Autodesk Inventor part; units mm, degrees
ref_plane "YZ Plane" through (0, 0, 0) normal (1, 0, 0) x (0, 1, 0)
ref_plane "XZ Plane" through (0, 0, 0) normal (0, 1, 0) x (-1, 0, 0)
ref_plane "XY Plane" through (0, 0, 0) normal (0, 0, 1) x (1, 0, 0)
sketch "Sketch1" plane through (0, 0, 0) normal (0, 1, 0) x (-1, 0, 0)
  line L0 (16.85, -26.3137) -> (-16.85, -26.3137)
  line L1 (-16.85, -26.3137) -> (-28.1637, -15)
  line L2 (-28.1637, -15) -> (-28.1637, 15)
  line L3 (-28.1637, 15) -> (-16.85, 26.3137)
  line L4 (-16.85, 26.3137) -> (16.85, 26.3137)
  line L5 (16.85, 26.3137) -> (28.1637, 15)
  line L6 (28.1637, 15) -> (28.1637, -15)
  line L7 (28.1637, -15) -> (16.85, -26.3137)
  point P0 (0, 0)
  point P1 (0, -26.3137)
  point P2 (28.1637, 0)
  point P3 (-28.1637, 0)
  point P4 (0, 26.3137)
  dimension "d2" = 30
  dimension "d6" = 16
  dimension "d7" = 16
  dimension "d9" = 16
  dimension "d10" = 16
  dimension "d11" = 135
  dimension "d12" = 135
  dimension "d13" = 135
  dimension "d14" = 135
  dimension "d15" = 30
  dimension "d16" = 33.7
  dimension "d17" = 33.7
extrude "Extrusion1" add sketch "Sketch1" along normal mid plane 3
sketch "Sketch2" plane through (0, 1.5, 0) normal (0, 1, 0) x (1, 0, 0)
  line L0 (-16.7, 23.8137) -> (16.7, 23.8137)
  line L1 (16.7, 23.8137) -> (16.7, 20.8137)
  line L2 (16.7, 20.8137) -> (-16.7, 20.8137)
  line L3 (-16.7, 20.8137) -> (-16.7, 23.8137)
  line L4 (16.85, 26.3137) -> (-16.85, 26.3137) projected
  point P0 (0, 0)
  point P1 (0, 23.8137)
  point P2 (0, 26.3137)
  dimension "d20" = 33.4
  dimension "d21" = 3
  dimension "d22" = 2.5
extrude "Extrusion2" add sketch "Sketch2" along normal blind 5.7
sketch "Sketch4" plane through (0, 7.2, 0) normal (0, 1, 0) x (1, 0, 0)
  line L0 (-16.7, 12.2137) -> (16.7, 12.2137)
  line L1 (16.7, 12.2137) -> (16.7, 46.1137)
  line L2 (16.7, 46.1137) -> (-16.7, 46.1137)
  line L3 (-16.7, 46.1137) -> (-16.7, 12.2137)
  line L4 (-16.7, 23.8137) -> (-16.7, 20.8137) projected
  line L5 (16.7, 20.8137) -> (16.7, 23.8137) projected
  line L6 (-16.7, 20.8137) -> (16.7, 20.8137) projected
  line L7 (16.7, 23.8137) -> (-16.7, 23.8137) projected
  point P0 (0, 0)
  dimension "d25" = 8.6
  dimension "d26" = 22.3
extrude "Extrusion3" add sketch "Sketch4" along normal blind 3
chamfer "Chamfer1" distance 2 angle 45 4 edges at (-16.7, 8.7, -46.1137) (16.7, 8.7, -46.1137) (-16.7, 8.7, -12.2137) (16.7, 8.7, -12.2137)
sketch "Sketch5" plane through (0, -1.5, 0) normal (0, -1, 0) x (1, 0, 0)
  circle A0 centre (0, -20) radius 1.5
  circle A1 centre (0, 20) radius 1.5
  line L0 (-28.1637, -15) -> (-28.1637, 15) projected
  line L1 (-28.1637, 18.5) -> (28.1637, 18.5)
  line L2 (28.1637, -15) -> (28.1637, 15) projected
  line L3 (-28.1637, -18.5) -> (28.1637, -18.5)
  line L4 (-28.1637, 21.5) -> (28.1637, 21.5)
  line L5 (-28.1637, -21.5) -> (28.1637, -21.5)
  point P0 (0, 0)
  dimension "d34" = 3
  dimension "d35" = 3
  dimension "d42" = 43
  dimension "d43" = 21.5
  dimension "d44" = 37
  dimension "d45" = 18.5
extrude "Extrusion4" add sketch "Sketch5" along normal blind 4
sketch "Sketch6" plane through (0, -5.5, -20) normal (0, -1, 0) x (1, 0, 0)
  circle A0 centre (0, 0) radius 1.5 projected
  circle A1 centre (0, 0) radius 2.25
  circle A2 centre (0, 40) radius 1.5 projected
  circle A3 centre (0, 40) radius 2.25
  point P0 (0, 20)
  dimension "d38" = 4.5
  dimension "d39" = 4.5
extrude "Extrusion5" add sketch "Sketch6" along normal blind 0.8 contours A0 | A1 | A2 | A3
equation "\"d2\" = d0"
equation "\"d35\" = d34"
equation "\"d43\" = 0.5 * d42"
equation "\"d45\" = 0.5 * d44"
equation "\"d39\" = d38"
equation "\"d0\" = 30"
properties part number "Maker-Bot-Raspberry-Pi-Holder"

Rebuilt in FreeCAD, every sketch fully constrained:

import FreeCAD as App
import Part
import Sketcher

V = App.Vector
Q = App.Units.Quantity


def edges_at(feature, points):
    """Names of the edges that pass closest to the given points."""
    edges = feature.Shape.Edges
    near = lambda p: min(range(len(edges)), key=lambda i: edges[i].distToShape(Part.Vertex(*p))[0])
    return sorted({f"Edge{near(p) + 1}" for p in points})

doc = App.newDocument("Part")
params = doc.addObject("Spreadsheet::Sheet", "Params")
for row, (alias, value) in enumerate([
    ("sketch1_height", "30 mm"),
    ("sketch1_length", "16 mm"),
    ("sketch1_width", "33.7 mm"),
    ("pad1_length", "3 mm"),
    ("sketch2_height", "3 mm"),
    ("sketch2_width", "33.4 mm"),
    ("pad2_length", "5.7 mm"),
    ("sketch3_width", "33.4 mm"),
    ("sketch3_height", "33.9 mm"),
    ("pad3_length", "3 mm"),
    ("chamfer_size", "2 mm"),
    ("sketch4_diameter", "3 mm"),
    ("pad4_length", "4 mm"),
    ("sketch5_diameter", "4.5 mm"),
    ("pad5_length", "0.8 mm"),
], start=1):
    params.set(f"A{row}", alias)
    params.set(f"B{row}", "=" + value)
    params.setAlias(f"B{row}", alias)

body = doc.addObject("PartDesign::Body", "Body")

# Sketch on XZ plane
sketch1 = doc.addObject("Sketcher::SketchObject", "Sketch")
body.addObject(sketch1)
sketch1.AttachmentSupport = (doc.XZ_Plane, [""])
sketch1.MapMode = "FlatFace"
sketch1.addGeometry([
    Part.LineSegment(V(17, -26, 0), V(-17, -26, 0)),  # 0
    Part.LineSegment(V(-17, -26, 0), V(-28, -15, 0)),  # 1
    Part.LineSegment(V(-28, -15, 0), V(-28, 15, 0)),  # 2
    Part.LineSegment(V(-28, 15, 0), V(-17, 26, 0)),  # 3
    Part.LineSegment(V(-17, 26, 0), V(17, 26, 0)),  # 4
    Part.LineSegment(V(17, 26, 0), V(28, 15, 0)),  # 5
    Part.LineSegment(V(28, 15, 0), V(28, -15, 0)),  # 6
    Part.LineSegment(V(28, -15, 0), V(17, -26, 0)),  # 7
], False)
sketch1.addConstraint([
    Sketcher.Constraint("Coincident", 0, 2, 1, 1),
    Sketcher.Constraint("Coincident", 1, 2, 2, 1),
    Sketcher.Constraint("Coincident", 2, 2, 3, 1),
    Sketcher.Constraint("Coincident", 3, 2, 4, 1),
    Sketcher.Constraint("Coincident", 4, 2, 5, 1),
    Sketcher.Constraint("Coincident", 5, 2, 6, 1),
    Sketcher.Constraint("Coincident", 6, 2, 7, 1),
    Sketcher.Constraint("Coincident", 7, 2, 0, 1),
    Sketcher.Constraint("Horizontal", 0),
    Sketcher.Constraint("Vertical", 2),
    Sketcher.Constraint("Horizontal", 4),
    Sketcher.Constraint("Vertical", 6),
    Sketcher.Constraint("Symmetric", 0, 2, 4, 2, -1, 1),
    Sketcher.Constraint("Symmetric", 1, 2, 5, 2, -1, 1),
    Sketcher.Constraint("Perpendicular", 1, 3),
    Sketcher.Constraint("Perpendicular", 5, 7),
    Sketcher.Constraint("Horizontal", 2, 2, 5, 2),
    Sketcher.Constraint("Horizontal", 1, 2, 6, 2),
    Sketcher.Constraint("Vertical", 0, 2, 3, 2),
    Sketcher.Constraint("DistanceY", 2, 1, 2, 2, Q("30 mm")),
    Sketcher.Constraint("Distance", 1, Q("16 mm")),
    Sketcher.Constraint("DistanceX", 0, 2, 0, 1, Q("33.7 mm")),
])
sketch1.setExpression("Constraints[19]", "Params.sketch1_height")
sketch1.setExpression("Constraints[20]", "Params.sketch1_length")
sketch1.setExpression("Constraints[21]", "Params.sketch1_width")
pad1 = doc.addObject("PartDesign::Pad", "Pad")
body.addObject(pad1)
pad1.Profile = sketch1
pad1.setExpression("Length", "Params.pad1_length")
pad1.Midplane = True

# Sketch on XZ plane
sketch2 = doc.addObject("Sketcher::SketchObject", "Sketch001")
body.addObject(sketch2)
sketch2.AttachmentSupport = (doc.XZ_Plane, [""])
sketch2.MapMode = "FlatFace"
sketch2.AttachmentOffset = App.Placement(V(0, 0, -1.5), App.Rotation())
sketch2.addGeometry([
    Part.LineSegment(V(16.7, -23.8, 0), V(-16.7, -23.8, 0)),
    Part.LineSegment(V(-16.7, -23.8, 0), V(-16.7, -20.8, 0)),
    Part.LineSegment(V(-16.7, -20.8, 0), V(16.7, -20.8, 0)),
    Part.LineSegment(V(16.7, -20.8, 0), V(16.7, -23.8, 0)),
], False)
sketch2.addConstraint([
    Sketcher.Constraint("Coincident", 0, 2, 1, 1),
    Sketcher.Constraint("Coincident", 1, 2, 2, 1),
    Sketcher.Constraint("Coincident", 2, 2, 3, 1),
    Sketcher.Constraint("Coincident", 3, 2, 0, 1),
    Sketcher.Constraint("Horizontal", 0),
    Sketcher.Constraint("Vertical", 1),
    Sketcher.Constraint("Horizontal", 2),
    Sketcher.Constraint("Vertical", 3),
    Sketcher.Constraint("DistanceY", 1, 1, 1, 2, Q("3 mm")),
    Sketcher.Constraint("DistanceX", 0, 2, 0, 1, Q("33.4 mm")),
    Sketcher.Constraint("DistanceX", 0, 2, -1, 1, Q("16.7 mm")),
    Sketcher.Constraint("DistanceY", 0, 2, -1, 1, Q("23.8137 mm")),
])
sketch2.setExpression("Constraints[8]", "Params.sketch2_height")
sketch2.setExpression("Constraints[9]", "Params.sketch2_width")
pad2 = doc.addObject("PartDesign::Pad", "Pad001")
body.addObject(pad2)
pad2.Profile = sketch2
pad2.setExpression("Length", "Params.pad2_length")
pad2.Reversed = True

# Sketch on XZ plane
sketch3 = doc.addObject("Sketcher::SketchObject", "Sketch002")
body.addObject(sketch3)
sketch3.AttachmentSupport = (doc.XZ_Plane, [""])
sketch3.MapMode = "FlatFace"
sketch3.AttachmentOffset = App.Placement(V(0, 0, -7.2), App.Rotation())
sketch3.addGeometry([
    Part.LineSegment(V(-17, -12, 0), V(17, -12, 0)),
    Part.LineSegment(V(17, -12, 0), V(17, -46, 0)),
    Part.LineSegment(V(17, -46, 0), V(-17, -46, 0)),
    Part.LineSegment(V(-17, -46, 0), V(-17, -12, 0)),
], False)
sketch3.addConstraint([
    Sketcher.Constraint("Coincident", 0, 2, 1, 1),
    Sketcher.Constraint("Coincident", 1, 2, 2, 1),
    Sketcher.Constraint("Coincident", 2, 2, 3, 1),
    Sketcher.Constraint("Coincident", 3, 2, 0, 1),
    Sketcher.Constraint("Horizontal", 0),
    Sketcher.Constraint("Vertical", 1),
    Sketcher.Constraint("Horizontal", 2),
    Sketcher.Constraint("Vertical", 3),
    Sketcher.Constraint("DistanceX", 0, 1, 0, 2, Q("33.4 mm")),
    Sketcher.Constraint("DistanceY", 1, 2, 1, 1, Q("33.9 mm")),
    Sketcher.Constraint("DistanceX", -1, 1, 0, 2, Q("16.7 mm")),
    Sketcher.Constraint("DistanceY", 0, 2, -1, 1, Q("12.2137 mm")),
])
sketch3.setExpression("Constraints[8]", "Params.sketch3_width")
sketch3.setExpression("Constraints[9]", "Params.sketch3_height")
pad3 = doc.addObject("PartDesign::Pad", "Pad002")
body.addObject(pad3)
pad3.Profile = sketch3
pad3.setExpression("Length", "Params.pad3_length")
pad3.Reversed = True
doc.recompute()

chamfer = doc.addObject("PartDesign::Chamfer", "Chamfer")
body.addObject(chamfer)
chamfer.Base = (pad3, edges_at(pad3, [
    (-16.7, 8.7, -46.114),
    (16.7, 8.7, -46.114),
    (-16.7, 8.7, -12.214),
    (16.7, 8.7, -12.214),
]))
chamfer.setExpression("Size", "Params.chamfer_size")

# Sketch on XZ plane
sketch4 = doc.addObject("Sketcher::SketchObject", "Sketch003")
body.addObject(sketch4)
sketch4.AttachmentSupport = (doc.XZ_Plane, [""])
sketch4.MapMode = "FlatFace"
sketch4.AttachmentOffset = App.Placement(V(0, 0, 1.5), App.Rotation())
sketch4.addGeometry([
    Part.Circle(V(0, -20, 0), V(0, 0, 1), 1.5),
    Part.Circle(V(0, 20, 0), V(0, 0, 1), 1.5),
], False)
sketch4.addConstraint([
    Sketcher.Constraint("Equal", 0, 1),
    Sketcher.Constraint("Symmetric", 0, 3, 1, 3, -1, 1),
    Sketcher.Constraint("PointOnObject", 0, 3, -2),
    Sketcher.Constraint("Diameter", 0, Q("3 mm")),
    Sketcher.Constraint("DistanceY", 0, 3, -1, 1, Q("20 mm")),
])
sketch4.setExpression("Constraints[3]", "Params.sketch4_diameter")
pad4 = doc.addObject("PartDesign::Pad", "Pad003")
body.addObject(pad4)
pad4.Profile = sketch4
pad4.setExpression("Length", "Params.pad4_length")

# Sketch on XZ plane
sketch5 = doc.addObject("Sketcher::SketchObject", "Sketch004")
body.addObject(sketch5)
sketch5.AttachmentSupport = (doc.XZ_Plane, [""])
sketch5.MapMode = "FlatFace"
sketch5.AttachmentOffset = App.Placement(V(0, 0, 5.5), App.Rotation())
sketch5.addGeometry([
    Part.Circle(V(0, -20, 0), V(0, 0, 1), 2.2),
    Part.Circle(V(0, 20, 0), V(0, 0, 1), 2.2),
], False)
sketch5.addConstraint([
    Sketcher.Constraint("Equal", 0, 1),
    Sketcher.Constraint("Symmetric", 0, 3, 1, 3, -1, 1),
    Sketcher.Constraint("PointOnObject", 0, 3, -2),
    Sketcher.Constraint("Diameter", 0, Q("4.5 mm")),
    Sketcher.Constraint("DistanceY", 0, 3, -1, 1, Q("20 mm")),
])
sketch5.setExpression("Constraints[3]", "Params.sketch5_diameter")
pad5 = doc.addObject("PartDesign::Pad", "Pad004")
body.addObject(pad5)
pad5.Profile = sketch5
pad5.setExpression("Length", "Params.pad5_length")

doc.recompute()
